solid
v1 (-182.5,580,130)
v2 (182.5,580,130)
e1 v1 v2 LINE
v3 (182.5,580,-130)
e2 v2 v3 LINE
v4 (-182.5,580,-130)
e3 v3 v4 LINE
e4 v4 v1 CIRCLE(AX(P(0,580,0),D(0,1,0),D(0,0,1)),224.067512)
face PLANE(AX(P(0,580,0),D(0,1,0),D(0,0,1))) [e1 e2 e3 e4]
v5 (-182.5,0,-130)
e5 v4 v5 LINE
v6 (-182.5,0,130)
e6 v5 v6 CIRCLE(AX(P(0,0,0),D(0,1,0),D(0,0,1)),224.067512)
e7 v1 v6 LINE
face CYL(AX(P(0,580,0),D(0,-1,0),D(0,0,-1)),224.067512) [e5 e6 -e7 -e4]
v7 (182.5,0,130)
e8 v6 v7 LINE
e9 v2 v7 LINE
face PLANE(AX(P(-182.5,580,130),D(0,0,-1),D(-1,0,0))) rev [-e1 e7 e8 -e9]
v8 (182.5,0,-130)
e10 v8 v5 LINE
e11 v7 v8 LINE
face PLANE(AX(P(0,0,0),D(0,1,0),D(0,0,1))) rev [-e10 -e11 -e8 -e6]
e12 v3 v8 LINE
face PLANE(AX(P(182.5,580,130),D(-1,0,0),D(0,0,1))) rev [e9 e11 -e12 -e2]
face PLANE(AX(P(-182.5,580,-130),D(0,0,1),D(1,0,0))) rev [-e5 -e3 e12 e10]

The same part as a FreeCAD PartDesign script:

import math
import FreeCAD as App
import Part
import Sketcher

V = App.Vector
Q = App.Units.Quantity

doc = App.newDocument("Part")
body = doc.addObject("PartDesign::Body", "Body")

# Sketch on XZ plane
sketch1 = doc.addObject("Sketcher::SketchObject", "Sketch")
body.addObject(sketch1)
sketch1.AttachmentSupport = (doc.XZ_Plane, [""])
sketch1.MapMode = "FlatFace"
sketch1.addGeometry([
    Part.LineSegment(V(-182, 130, 0), V(182, 130, 0)),
    Part.LineSegment(V(182, 130, 0), V(182, -130, 0)),
    Part.LineSegment(V(182, -130, 0), V(-182, -130, 0)),
    Part.ArcOfCircle(Part.Circle(V(0, 0, 0), V(0, 0, 1), 224), math.radians(145), math.radians(215)),
], False)
sketch1.addConstraint([
    Sketcher.Constraint("Coincident", 0, 2, 1, 1),
    Sketcher.Constraint("Coincident", 1, 2, 2, 1),
    Sketcher.Constraint("Coincident", 2, 2, 3, 2),
    Sketcher.Constraint("Coincident", 3, 1, 0, 1),
    Sketcher.Constraint("Horizontal", 0),
    Sketcher.Constraint("Vertical", 1),
    Sketcher.Constraint("Horizontal", 2),
    Sketcher.Constraint("Coincident", 3, 3, -1, 1),
    Sketcher.Constraint("Symmetric", 0, 2, 2, 2, -1, 1),
    Sketcher.Constraint("DistanceX", 0, 1, 0, 2, Q("365 mm")),
    Sketcher.Constraint("DistanceY", 1, 2, 1, 1, Q("260 mm")),
])
pad1 = doc.addObject("PartDesign::Pad", "Pad")
body.addObject(pad1)
pad1.Profile = sketch1
pad1.Length = 580
pad1.Reversed = True

doc.recompute()
